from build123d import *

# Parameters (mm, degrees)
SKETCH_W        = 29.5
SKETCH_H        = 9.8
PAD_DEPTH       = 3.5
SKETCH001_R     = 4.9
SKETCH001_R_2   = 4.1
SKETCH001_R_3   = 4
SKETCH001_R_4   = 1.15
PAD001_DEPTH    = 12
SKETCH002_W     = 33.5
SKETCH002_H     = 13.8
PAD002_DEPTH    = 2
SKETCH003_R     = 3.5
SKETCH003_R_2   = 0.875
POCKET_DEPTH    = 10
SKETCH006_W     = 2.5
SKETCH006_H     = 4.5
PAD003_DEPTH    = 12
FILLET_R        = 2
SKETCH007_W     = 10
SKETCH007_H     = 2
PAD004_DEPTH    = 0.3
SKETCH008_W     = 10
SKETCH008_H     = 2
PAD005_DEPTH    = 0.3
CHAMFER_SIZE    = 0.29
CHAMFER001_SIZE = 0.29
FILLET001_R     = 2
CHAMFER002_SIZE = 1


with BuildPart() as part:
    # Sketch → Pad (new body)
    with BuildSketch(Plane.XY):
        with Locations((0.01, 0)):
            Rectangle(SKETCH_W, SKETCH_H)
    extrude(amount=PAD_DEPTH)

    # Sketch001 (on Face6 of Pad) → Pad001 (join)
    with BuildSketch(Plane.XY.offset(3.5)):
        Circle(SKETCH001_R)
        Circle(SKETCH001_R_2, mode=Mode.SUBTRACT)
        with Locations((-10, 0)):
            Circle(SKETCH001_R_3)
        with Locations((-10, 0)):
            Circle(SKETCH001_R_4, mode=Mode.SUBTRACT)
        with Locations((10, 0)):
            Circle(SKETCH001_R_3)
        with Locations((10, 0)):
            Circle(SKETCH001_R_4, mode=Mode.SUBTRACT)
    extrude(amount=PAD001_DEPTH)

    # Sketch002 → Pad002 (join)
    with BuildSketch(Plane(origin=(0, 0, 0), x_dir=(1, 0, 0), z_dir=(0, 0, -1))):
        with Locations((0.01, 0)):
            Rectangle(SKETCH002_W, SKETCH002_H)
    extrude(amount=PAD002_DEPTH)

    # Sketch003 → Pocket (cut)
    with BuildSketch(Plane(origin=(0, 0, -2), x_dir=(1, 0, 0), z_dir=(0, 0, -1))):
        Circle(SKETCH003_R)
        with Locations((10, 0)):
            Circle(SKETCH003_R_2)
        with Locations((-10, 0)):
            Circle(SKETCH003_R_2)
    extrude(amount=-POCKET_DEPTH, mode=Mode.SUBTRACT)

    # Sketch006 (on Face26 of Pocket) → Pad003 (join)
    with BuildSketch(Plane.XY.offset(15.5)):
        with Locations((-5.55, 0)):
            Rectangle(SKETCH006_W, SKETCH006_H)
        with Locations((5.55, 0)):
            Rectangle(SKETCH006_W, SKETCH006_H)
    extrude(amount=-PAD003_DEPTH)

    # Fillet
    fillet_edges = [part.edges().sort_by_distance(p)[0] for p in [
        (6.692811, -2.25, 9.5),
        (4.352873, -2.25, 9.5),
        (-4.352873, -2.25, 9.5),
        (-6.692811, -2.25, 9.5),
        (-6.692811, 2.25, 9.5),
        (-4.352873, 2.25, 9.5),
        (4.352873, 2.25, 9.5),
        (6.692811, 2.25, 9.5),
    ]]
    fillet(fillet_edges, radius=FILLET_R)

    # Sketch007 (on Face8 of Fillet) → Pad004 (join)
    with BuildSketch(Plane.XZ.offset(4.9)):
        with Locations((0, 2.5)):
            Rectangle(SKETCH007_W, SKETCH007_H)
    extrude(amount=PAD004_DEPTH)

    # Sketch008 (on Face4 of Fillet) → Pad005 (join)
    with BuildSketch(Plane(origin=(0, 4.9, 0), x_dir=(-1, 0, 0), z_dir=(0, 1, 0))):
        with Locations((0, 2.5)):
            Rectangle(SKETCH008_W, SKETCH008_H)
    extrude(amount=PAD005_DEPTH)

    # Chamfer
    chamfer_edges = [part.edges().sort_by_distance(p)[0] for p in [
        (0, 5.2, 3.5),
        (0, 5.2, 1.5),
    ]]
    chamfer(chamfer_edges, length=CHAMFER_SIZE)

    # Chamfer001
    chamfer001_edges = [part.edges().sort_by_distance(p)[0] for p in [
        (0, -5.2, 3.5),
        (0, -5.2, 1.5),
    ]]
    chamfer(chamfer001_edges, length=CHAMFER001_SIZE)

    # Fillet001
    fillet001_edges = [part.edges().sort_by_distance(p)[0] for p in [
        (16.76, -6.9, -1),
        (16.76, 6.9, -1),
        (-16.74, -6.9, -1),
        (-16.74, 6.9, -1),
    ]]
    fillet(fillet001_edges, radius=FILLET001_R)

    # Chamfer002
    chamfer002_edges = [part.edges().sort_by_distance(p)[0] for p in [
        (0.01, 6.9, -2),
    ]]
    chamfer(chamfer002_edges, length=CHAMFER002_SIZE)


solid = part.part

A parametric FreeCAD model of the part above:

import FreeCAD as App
import Part
import Sketcher

V = App.Vector
Q = App.Units.Quantity


def edges_at(feature, points):
    """Names of the edges that pass closest to the given points."""
    edges = feature.Shape.Edges
    near = lambda p: min(range(len(edges)), key=lambda i: edges[i].distToShape(Part.Vertex(*p))[0])
    return sorted({f"Edge{near(p) + 1}" for p in points})


def add_polygon(sketch, points):
    """Adds a closed chain of lines whose ends are joined by coincident constraints."""
    first, n = sketch.GeometryCount, len(points)
    for a, b in zip(points, points[1:] + points[:1]):
        sketch.addGeometry(Part.LineSegment(App.Vector(*a, 0), App.Vector(*b, 0)), False)
    for i in range(n):
        sketch.addConstraint(Sketcher.Constraint("Coincident", first + i, 2, first + (i + 1) % n, 1))

doc = App.newDocument("Part")
body = doc.addObject("PartDesign::Body", "Body")

sketch1 = body.newObject("Sketcher::SketchObject", "Sketch")
sketch1.AttachmentSupport = (doc.getObject("XY_Plane"), [""])
sketch1.MapMode = "FlatFace"
add_polygon(sketch1, [(-14.74, 4.9), (-14.74, -4.9), (14.76, -4.9), (14.76, 4.9)])
sketch1.addConstraint(Sketcher.Constraint("Vertical", 0))
sketch1.addConstraint(Sketcher.Constraint("Horizontal", 1))
sketch1.addConstraint(Sketcher.Constraint("Vertical", 2))
sketch1.addConstraint(Sketcher.Constraint("Horizontal", 3))
sketch1.addConstraint(Sketcher.Constraint("DistanceX", 1, 1, 1, 2, Q("29.5 mm")))
sketch1.addConstraint(Sketcher.Constraint("DistanceY", 0, 2, 0, 1, Q("9.8 mm")))
sketch1.addConstraint(Sketcher.Constraint("DistanceY", 0, 2, -1, 1, Q("4.9 mm")))
sketch1.addConstraint(Sketcher.Constraint("DistanceX", 0, 2, -1, 1, Q("14.74 mm")))
pad1 = body.newObject("PartDesign::Pad", "Pad")
pad1.Profile = sketch1
pad1.Length = 3.5

sketch2 = body.newObject("Sketcher::SketchObject", "Sketch001")
sketch2.AttachmentSupport = (doc.getObject("XY_Plane"), [""])
sketch2.MapMode = "FlatFace"
sketch2.AttachmentOffset = App.Placement(V(0, 0, 3.5), App.Rotation())
sketch2.addGeometry(Part.Circle(V(0, 0, 0), V(0, 0, 1), 4.9), False)
sketch2.addGeometry(Part.Circle(V(0, 0, 0), V(0, 0, 1), 4.1), False)
sketch2.addGeometry(Part.Circle(V(-10, 0, 0), V(0, 0, 1), 4), False)
sketch2.addGeometry(Part.Circle(V(-10, 0, 0), V(0, 0, 1), 1.15), False)
sketch2.addGeometry(Part.Circle(V(10, 0, 0), V(0, 0, 1), 4), False)
sketch2.addGeometry(Part.Circle(V(10, 0, 0), V(0, 0, 1), 1.15), False)
sketch2.addConstraint(Sketcher.Constraint("Coincident", 0, 3, -1, 1))
sketch2.addConstraint(Sketcher.Constraint("Coincident", 1, 3, -1, 1))
sketch2.addConstraint(Sketcher.Constraint("Coincident", 3, 3, 2, 3))
sketch2.addConstraint(Sketcher.Constraint("Coincident", 5, 3, 4, 3))
sketch2.addConstraint(Sketcher.Constraint("Equal", 2, 4))
sketch2.addConstraint(Sketcher.Constraint("Equal", 3, 5))
sketch2.addConstraint(Sketcher.Constraint("Symmetric", 2, 3, 4, 3, -1, 1))
sketch2.addConstraint(Sketcher.Constraint("PointOnObject", 2, 3, -1))
sketch2.addConstraint(Sketcher.Constraint("Diameter", 2, Q("8 mm")))
sketch2.addConstraint(Sketcher.Constraint("Diameter", 0, Q("9.8 mm")))
sketch2.addConstraint(Sketcher.Constraint("Diameter", 1, Q("8.2 mm")))
sketch2.addConstraint(Sketcher.Constraint("Diameter", 3, Q("2.3 mm")))
sketch2.addConstraint(Sketcher.Constraint("DistanceX", 2, 3, -1, 1, Q("10 mm")))
pad2 = body.newObject("PartDesign::Pad", "Pad001")
pad2.Profile = sketch2
pad2.Length = 12

sketch3 = body.newObject("Sketcher::SketchObject", "Sketch002")
sketch3.AttachmentSupport = (doc.getObject("XY_Plane"), [""])
sketch3.MapMode = "FlatFace"
add_polygon(sketch3, [(-16.74, -6.9), (-16.74, 6.9), (16.76, 6.9), (16.76, -6.9)])
sketch3.addConstraint(Sketcher.Constraint("Vertical", 0))
sketch3.addConstraint(Sketcher.Constraint("Horizontal", 1))
sketch3.addConstraint(Sketcher.Constraint("Vertical", 2))
sketch3.addConstraint(Sketcher.Constraint("Horizontal", 3))
sketch3.addConstraint(Sketcher.Constraint("DistanceX", 1, 1, 1, 2, Q("33.5 mm")))
sketch3.addConstraint(Sketcher.Constraint("DistanceY", 0, 1, 0, 2, Q("13.8 mm")))
sketch3.addConstraint(Sketcher.Constraint("DistanceY", -1, 1, 0, 2, Q("6.9 mm")))
sketch3.addConstraint(Sketcher.Constraint("DistanceX", 0, 2, -1, 1, Q("16.74 mm")))
pad3 = body.newObject("PartDesign::Pad", "Pad002")
pad3.Profile = sketch3
pad3.Length = 2
pad3.Reversed = True

sketch4 = body.newObject("Sketcher::SketchObject", "Sketch003")
sketch4.AttachmentSupport = (doc.getObject("XY_Plane"), [""])
sketch4.MapMode = "FlatFace"
sketch4.AttachmentOffset = App.Placement(V(0, 0, -2), App.Rotation())
sketch4.addGeometry(Part.Circle(V(0, 0, 0), V(0, 0, 1), 3.5), False)
sketch4.addGeometry(Part.Circle(V(10, 0, 0), V(0, 0, 1), 0.875), False)
sketch4.addGeometry(Part.Circle(V(-10, 0, 0), V(0, 0, 1), 0.875), False)
sketch4.addConstraint(Sketcher.Constraint("Coincident", 0, 3, -1, 1))
sketch4.addConstraint(Sketcher.Constraint("Equal", 1, 2))
sketch4.addConstraint(Sketcher.Constraint("Symmetric", 1, 3, 2, 3, -1, 1))
sketch4.addConstraint(Sketcher.Constraint("PointOnObject", 1, 3, -1))
sketch4.addConstraint(Sketcher.Constraint("Diameter", 0, Q("7 mm")))
sketch4.addConstraint(Sketcher.Constraint("Diameter", 1, Q("1.75 mm")))
sketch4.addConstraint(Sketcher.Constraint("DistanceX", -1, 1, 1, 3, Q("10 mm")))
pocket1 = body.newObject("PartDesign::Pocket", "Pocket")
pocket1.Profile = sketch4
pocket1.Length = 10
pocket1.Reversed = True

sketch5 = body.newObject("Sketcher::SketchObject", "Sketch004")
sketch5.AttachmentSupport = (doc.getObject("XY_Plane"), [""])
sketch5.MapMode = "FlatFace"
sketch5.AttachmentOffset = App.Placement(V(0, 0, 15.5), App.Rotation())
add_polygon(sketch5, [(-6.8, 2.25), (-6.8, -2.25), (-4.3, -2.25), (-4.3, 2.25)])
add_polygon(sketch5, [(4.3, 2.25), (4.3, -2.25), (6.8, -2.25), (6.8, 2.25)])
sketch5.addConstraint(Sketcher.Constraint("Vertical", 0))
sketch5.addConstraint(Sketcher.Constraint("Horizontal", 1))
sketch5.addConstraint(Sketcher.Constraint("Vertical", 2))
sketch5.addConstraint(Sketcher.Constraint("Horizontal", 3))
sketch5.addConstraint(Sketcher.Constraint("Vertical", 4))
sketch5.addConstraint(Sketcher.Constraint("Horizontal", 5))
sketch5.addConstraint(Sketcher.Constraint("Vertical", 6))
sketch5.addConstraint(Sketcher.Constraint("Horizontal", 7))
sketch5.addConstraint(Sketcher.Constraint("Symmetric", 2, 2, 4, 2, -1, 1))
sketch5.addConstraint(Sketcher.Constraint("Symmetric", 0, 2, 6, 2, -1, 1))
sketch5.addConstraint(Sketcher.Constraint("Horizontal", 1, 2, 4, 2))
sketch5.addConstraint(Sketcher.Constraint("DistanceX", 1, 1, 1, 2, Q("2.5 mm")))
sketch5.addConstraint(Sketcher.Constraint("DistanceY", 0, 2, 0, 1, Q("4.5 mm")))
sketch5.addConstraint(Sketcher.Constraint("DistanceX", 0, 2, -1, 1, Q("6.8 mm")))
pad4 = body.newObject("PartDesign::Pad", "Pad003")
pad4.Profile = sketch5
pad4.Length = 12
pad4.Reversed = True
doc.recompute()

fillet = body.newObject("PartDesign::Fillet", "Fillet")
fillet.Base = (pad4, edges_at(pad4, [
    (6.693, -2.25, 9.5),
    (4.353, -2.25, 9.5),
    (-4.353, -2.25, 9.5),
    (-6.693, -2.25, 9.5),
    (-6.693, 2.25, 9.5),
    (-4.353, 2.25, 9.5),
    (4.353, 2.25, 9.5),
    (6.693, 2.25, 9.5),
]))
fillet.Radius = 2

sketch6 = body.newObject("Sketcher::SketchObject", "Sketch005")
sketch6.AttachmentSupport = (doc.getObject("XZ_Plane"), [""])
sketch6.MapMode = "FlatFace"
sketch6.AttachmentOffset = App.Placement(V(0, 0, 4.9), App.Rotation())
add_polygon(sketch6, [(-5, 3.5), (-5, 1.5), (5, 1.5), (5, 3.5)])
sketch6.addConstraint(Sketcher.Constraint("Vertical", 0))
sketch6.addConstraint(Sketcher.Constraint("Horizontal", 1))
sketch6.addConstraint(Sketcher.Constraint("Vertical", 2))
sketch6.addConstraint(Sketcher.Constraint("Horizontal", 3))
sketch6.addConstraint(Sketcher.Constraint("DistanceX", 1, 1, 1, 2, Q("10 mm")))
sketch6.addConstraint(Sketcher.Constraint("DistanceY", 0, 2, 0, 1, Q("2 mm")))
sketch6.addConstraint(Sketcher.Constraint("DistanceX", 0, 2, -1, 1, Q("5 mm")))
sketch6.addConstraint(Sketcher.Constraint("DistanceY", -1, 1, 0, 2, Q("1.5 mm")))
pad5 = body.newObject("PartDesign::Pad", "Pad004")
pad5.Profile = sketch6
pad5.Length = 0.3

sketch7 = body.newObject("Sketcher::SketchObject", "Sketch006")
sketch7.AttachmentSupport = (doc.getObject("XZ_Plane"), [""])
sketch7.MapMode = "FlatFace"
sketch7.AttachmentOffset = App.Placement(V(0, 0, -4.9), App.Rotation())
add_polygon(sketch7, [(5, 3.5), (5, 1.5), (-5, 1.5), (-5, 3.5)])
sketch7.addConstraint(Sketcher.Constraint("Vertical", 0))
sketch7.addConstraint(Sketcher.Constraint("Horizontal", 1))
sketch7.addConstraint(Sketcher.Constraint("Vertical", 2))
sketch7.addConstraint(Sketcher.Constraint("Horizontal", 3))
sketch7.addConstraint(Sketcher.Constraint("DistanceX", 1, 2, 1, 1, Q("10 mm")))
sketch7.addConstraint(Sketcher.Constraint("DistanceY", 0, 2, 0, 1, Q("2 mm")))
sketch7.addConstraint(Sketcher.Constraint("DistanceX", -1, 1, 0, 2, Q("5 mm")))
sketch7.addConstraint(Sketcher.Constraint("DistanceY", -1, 1, 0, 2, Q("1.5 mm")))
pad6 = body.newObject("PartDesign::Pad", "Pad005")
pad6.Profile = sketch7
pad6.Length = 0.3
pad6.Reversed = True
doc.recompute()

chamfer = body.newObject("PartDesign::Chamfer", "Chamfer")
chamfer.Base = (pad6, edges_at(pad6, [(0, 5.2, 3.5), (0, 5.2, 1.5)]))
chamfer.Size = 0.29
doc.recompute()

chamfer2 = body.newObject("PartDesign::Chamfer", "Chamfer001")
chamfer2.Base = (chamfer, edges_at(chamfer, [(0, -5.2, 3.5), (0, -5.2, 1.5)]))
chamfer2.Size = 0.29
doc.recompute()

fillet2 = body.newObject("PartDesign::Fillet", "Fillet001")
fillet2.Base = (chamfer2, edges_at(chamfer2, [
    (16.76, -6.9, -1),
    (16.76, 6.9, -1),
    (-16.74, -6.9, -1),
    (-16.74, 6.9, -1),
]))
fillet2.Radius = 2
doc.recompute()

chamfer3 = body.newObject("PartDesign::Chamfer", "Chamfer002")
chamfer3.Base = (fillet2, edges_at(fillet2, [(0.01, 6.9, -2)]))
chamfer3.Size = 1

doc.recompute()
